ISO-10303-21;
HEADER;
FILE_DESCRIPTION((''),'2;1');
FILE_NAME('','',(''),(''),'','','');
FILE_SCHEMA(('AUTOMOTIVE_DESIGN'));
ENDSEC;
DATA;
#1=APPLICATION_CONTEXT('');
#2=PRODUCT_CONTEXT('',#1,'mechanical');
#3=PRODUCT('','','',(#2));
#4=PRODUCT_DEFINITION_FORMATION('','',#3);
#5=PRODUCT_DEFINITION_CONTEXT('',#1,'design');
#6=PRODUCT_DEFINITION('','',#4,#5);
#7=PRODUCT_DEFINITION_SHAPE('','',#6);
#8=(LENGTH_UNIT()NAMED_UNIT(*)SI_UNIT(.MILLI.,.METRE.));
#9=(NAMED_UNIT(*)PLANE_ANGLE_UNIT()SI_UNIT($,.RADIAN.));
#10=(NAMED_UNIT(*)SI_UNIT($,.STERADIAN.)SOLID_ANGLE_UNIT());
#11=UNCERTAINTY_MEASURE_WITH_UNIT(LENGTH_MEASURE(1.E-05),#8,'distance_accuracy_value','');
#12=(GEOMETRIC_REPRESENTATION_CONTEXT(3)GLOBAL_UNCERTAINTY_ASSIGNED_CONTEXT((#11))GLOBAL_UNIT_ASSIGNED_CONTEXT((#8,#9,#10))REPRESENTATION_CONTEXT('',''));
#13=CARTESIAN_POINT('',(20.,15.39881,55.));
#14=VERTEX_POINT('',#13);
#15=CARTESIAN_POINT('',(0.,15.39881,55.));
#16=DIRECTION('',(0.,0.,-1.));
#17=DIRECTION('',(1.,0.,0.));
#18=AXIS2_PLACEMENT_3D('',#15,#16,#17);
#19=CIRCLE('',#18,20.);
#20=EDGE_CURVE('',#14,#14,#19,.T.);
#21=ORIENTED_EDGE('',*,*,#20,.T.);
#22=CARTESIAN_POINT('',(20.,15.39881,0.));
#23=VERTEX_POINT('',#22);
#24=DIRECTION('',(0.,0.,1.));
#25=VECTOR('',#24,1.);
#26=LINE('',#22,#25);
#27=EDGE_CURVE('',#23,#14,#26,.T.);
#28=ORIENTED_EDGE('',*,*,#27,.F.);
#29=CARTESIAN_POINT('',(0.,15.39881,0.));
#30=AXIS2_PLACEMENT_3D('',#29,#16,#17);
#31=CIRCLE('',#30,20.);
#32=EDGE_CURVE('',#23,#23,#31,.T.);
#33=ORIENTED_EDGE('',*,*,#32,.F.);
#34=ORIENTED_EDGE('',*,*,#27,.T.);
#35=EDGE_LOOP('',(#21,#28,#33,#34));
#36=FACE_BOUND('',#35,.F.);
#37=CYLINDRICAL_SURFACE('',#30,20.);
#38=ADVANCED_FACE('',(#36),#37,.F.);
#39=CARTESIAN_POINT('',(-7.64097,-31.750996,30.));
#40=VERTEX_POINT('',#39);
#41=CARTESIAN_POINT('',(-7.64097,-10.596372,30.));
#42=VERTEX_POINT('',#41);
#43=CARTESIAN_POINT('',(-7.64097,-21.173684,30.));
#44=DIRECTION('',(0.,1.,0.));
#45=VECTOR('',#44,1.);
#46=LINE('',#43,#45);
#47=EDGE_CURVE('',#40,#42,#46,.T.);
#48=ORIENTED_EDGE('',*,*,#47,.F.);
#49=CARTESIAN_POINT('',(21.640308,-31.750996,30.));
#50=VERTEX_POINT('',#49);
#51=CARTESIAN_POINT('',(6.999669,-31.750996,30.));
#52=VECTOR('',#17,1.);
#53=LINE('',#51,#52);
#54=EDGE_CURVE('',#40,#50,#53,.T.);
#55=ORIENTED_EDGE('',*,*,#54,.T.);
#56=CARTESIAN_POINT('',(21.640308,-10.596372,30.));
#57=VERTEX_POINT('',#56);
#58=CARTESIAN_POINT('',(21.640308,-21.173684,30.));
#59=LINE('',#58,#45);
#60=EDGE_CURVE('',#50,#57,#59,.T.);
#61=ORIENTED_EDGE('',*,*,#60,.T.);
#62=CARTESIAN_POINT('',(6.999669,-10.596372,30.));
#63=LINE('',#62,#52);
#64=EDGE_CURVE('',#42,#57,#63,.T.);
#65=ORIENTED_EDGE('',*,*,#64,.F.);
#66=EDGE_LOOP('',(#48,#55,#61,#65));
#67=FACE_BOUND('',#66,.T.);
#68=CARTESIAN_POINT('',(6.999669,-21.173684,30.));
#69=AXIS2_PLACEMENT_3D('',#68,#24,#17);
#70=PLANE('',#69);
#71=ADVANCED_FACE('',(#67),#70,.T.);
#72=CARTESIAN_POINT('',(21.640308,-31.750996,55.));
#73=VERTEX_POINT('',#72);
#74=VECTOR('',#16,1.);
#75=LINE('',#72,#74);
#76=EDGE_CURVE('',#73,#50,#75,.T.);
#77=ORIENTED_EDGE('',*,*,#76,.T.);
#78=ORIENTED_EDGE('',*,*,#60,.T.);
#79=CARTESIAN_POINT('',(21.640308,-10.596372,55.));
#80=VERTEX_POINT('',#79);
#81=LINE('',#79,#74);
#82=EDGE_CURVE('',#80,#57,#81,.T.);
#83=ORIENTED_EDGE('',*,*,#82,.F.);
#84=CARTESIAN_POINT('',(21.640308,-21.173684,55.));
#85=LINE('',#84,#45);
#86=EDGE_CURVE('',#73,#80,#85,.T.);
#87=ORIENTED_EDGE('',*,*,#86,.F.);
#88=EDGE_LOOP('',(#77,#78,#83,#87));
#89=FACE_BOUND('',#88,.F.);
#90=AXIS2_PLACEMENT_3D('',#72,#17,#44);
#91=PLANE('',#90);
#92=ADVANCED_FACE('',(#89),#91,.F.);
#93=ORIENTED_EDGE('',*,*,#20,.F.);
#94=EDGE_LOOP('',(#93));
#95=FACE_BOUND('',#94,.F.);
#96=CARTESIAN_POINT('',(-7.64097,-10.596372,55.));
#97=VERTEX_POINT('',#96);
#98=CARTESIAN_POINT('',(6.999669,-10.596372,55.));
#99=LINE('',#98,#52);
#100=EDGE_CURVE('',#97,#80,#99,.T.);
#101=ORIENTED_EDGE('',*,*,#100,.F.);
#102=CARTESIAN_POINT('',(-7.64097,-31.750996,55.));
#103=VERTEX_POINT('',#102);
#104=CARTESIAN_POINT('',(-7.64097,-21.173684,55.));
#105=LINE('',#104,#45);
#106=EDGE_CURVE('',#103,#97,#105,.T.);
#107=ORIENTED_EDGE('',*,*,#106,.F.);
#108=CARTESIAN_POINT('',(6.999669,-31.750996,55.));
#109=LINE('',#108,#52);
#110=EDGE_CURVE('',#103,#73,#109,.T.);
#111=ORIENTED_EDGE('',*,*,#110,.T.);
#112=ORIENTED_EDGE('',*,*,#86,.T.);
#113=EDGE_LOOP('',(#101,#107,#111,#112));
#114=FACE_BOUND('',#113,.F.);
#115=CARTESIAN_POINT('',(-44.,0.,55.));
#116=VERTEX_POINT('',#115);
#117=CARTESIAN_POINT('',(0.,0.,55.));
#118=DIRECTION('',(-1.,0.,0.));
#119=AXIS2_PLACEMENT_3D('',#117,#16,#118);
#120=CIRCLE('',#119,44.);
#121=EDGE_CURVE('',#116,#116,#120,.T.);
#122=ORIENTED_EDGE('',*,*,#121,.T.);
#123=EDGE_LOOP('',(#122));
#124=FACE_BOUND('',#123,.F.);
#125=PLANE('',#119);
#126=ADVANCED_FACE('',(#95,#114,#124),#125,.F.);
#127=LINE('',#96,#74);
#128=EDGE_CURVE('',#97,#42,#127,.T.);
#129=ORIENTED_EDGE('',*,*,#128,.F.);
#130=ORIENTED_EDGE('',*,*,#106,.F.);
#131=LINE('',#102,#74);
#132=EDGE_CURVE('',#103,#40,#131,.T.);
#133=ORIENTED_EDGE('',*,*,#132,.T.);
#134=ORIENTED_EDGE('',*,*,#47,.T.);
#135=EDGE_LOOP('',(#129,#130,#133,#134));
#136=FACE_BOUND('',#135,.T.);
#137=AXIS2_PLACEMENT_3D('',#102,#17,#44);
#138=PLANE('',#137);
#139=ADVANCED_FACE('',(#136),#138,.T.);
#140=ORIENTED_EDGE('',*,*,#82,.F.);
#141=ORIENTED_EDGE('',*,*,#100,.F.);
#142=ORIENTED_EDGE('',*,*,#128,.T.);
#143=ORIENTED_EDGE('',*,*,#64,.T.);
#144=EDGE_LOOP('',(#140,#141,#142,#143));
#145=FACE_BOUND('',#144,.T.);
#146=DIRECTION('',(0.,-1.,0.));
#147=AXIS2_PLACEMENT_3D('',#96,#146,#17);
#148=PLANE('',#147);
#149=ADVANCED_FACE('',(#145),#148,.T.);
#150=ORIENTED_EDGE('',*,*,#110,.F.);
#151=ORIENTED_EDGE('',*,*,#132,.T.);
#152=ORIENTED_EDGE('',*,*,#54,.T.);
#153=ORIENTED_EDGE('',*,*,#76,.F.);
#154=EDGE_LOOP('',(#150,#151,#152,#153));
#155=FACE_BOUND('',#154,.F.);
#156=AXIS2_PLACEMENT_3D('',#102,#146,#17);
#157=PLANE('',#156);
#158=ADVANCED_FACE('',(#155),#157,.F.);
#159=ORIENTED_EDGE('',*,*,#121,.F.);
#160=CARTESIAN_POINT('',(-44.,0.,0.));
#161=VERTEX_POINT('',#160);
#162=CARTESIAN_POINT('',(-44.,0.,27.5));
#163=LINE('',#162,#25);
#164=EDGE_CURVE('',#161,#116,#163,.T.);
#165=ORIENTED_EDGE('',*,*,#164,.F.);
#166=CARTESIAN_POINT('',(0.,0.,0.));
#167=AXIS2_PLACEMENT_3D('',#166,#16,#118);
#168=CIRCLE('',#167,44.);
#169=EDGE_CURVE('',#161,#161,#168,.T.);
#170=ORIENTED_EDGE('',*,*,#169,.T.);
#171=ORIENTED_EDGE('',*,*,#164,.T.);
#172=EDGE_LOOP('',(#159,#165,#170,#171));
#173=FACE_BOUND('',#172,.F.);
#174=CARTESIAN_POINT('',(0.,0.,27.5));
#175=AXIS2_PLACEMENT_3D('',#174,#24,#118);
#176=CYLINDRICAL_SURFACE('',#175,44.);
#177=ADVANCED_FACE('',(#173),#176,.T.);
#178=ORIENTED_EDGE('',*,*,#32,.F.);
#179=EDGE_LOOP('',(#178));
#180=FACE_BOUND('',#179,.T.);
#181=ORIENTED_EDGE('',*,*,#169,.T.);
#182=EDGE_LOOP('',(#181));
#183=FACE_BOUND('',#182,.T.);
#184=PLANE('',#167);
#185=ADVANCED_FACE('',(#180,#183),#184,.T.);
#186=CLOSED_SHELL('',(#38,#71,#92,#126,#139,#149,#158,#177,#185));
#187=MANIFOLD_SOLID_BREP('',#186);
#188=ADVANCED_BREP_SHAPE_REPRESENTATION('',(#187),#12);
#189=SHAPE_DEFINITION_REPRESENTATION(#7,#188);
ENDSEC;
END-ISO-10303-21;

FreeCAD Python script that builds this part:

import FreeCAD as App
import Part
import Sketcher

V = App.Vector
Q = App.Units.Quantity


def add_polygon(sketch, points):
    """Adds a closed chain of lines whose ends are joined by coincident constraints."""
    first, n = sketch.GeometryCount, len(points)
    for a, b in zip(points, points[1:] + points[:1]):
        sketch.addGeometry(Part.LineSegment(App.Vector(*a, 0), App.Vector(*b, 0)), False)
    for i in range(n):
        sketch.addConstraint(Sketcher.Constraint("Coincident", first + i, 2, first + (i + 1) % n, 1))

doc = App.newDocument("Part")
body = doc.addObject("PartDesign::Body", "Body")

# Sketch on XZ plane
sketch1 = body.newObject("Sketcher::SketchObject", "Sketch")
sketch1.AttachmentSupport = (doc.getObject("XZ_Plane"), [""])
sketch1.MapMode = "FlatFace"
add_polygon(sketch1, [(-44, 55), (-44, 0), (0, 0), (0, 55)])  # lines 0-3
sketch1.addConstraint(Sketcher.Constraint("Vertical", 0))
sketch1.addConstraint(Sketcher.Constraint("Horizontal", 1))
sketch1.addConstraint(Sketcher.Constraint("Vertical", 2))
sketch1.addConstraint(Sketcher.Constraint("Horizontal", 3))
sketch1.addConstraint(Sketcher.Constraint("Coincident", 1, 2, -1, 1))
sketch1.addConstraint(Sketcher.Constraint("DistanceX", 1, 1, 1, 2, Q("44 mm")))
sketch1.addConstraint(Sketcher.Constraint("DistanceY", 0, 2, 0, 1, Q("55 mm")))
revolution = body.newObject("PartDesign::Revolution", "Revolution")
revolution.Profile = sketch1
revolution.ReferenceAxis = (sketch1, ["V_Axis"])
revolution.Angle = 360

# Sketch on XY plane
sketch2 = body.newObject("Sketcher::SketchObject", "Sketch001")
sketch2.AttachmentSupport = (doc.getObject("XY_Plane"), [""])
sketch2.MapMode = "FlatFace"
sketch2.addGeometry(Part.Circle(V(0, 15, 0), V(0, 0, 1), 20), False)
sketch2.addConstraint(Sketcher.Constraint("PointOnObject", 0, 3, -2))
sketch2.addConstraint(Sketcher.Constraint("Diameter", 0, Q("40 mm")))
sketch2.addConstraint(Sketcher.Constraint("DistanceY", -1, 1, 0, 3, Q("15.39881 mm")))
pocket1 = body.newObject("PartDesign::Pocket", "Pocket")
pocket1.Profile = sketch2
pocket1.Length = 133.830428
pocket1.Reversed = True

# Sketch on XY plane
sketch3 = body.newObject("Sketcher::SketchObject", "Sketch002")
sketch3.AttachmentSupport = (doc.getObject("XY_Plane"), [""])
sketch3.MapMode = "FlatFace"
sketch3.AttachmentOffset = App.Placement(V(0, 0, 55), App.Rotation())
add_polygon(sketch3, [(-8, -11), (-8, -32), (22, -32), (22, -11)])  # lines 0-3
sketch3.addConstraint(Sketcher.Constraint("Vertical", 0))
sketch3.addConstraint(Sketcher.Constraint("Horizontal", 1))
sketch3.addConstraint(Sketcher.Constraint("Vertical", 2))
sketch3.addConstraint(Sketcher.Constraint("Horizontal", 3))
sketch3.addConstraint(Sketcher.Constraint("DistanceX", 1, 1, 1, 2, Q("29.281278 mm")))
sketch3.addConstraint(Sketcher.Constraint("DistanceY", 0, 2, 0, 1, Q("21.154624 mm")))
sketch3.addConstraint(Sketcher.Constraint("DistanceX", 0, 2, -1, 1, Q("7.64097 mm")))
sketch3.addConstraint(Sketcher.Constraint("DistanceY", 0, 2, -1, 1, Q("31.750996 mm")))
pocket2 = body.newObject("PartDesign::Pocket", "Pocket001")
pocket2.Profile = sketch3
pocket2.Length = 25

doc.recompute()
